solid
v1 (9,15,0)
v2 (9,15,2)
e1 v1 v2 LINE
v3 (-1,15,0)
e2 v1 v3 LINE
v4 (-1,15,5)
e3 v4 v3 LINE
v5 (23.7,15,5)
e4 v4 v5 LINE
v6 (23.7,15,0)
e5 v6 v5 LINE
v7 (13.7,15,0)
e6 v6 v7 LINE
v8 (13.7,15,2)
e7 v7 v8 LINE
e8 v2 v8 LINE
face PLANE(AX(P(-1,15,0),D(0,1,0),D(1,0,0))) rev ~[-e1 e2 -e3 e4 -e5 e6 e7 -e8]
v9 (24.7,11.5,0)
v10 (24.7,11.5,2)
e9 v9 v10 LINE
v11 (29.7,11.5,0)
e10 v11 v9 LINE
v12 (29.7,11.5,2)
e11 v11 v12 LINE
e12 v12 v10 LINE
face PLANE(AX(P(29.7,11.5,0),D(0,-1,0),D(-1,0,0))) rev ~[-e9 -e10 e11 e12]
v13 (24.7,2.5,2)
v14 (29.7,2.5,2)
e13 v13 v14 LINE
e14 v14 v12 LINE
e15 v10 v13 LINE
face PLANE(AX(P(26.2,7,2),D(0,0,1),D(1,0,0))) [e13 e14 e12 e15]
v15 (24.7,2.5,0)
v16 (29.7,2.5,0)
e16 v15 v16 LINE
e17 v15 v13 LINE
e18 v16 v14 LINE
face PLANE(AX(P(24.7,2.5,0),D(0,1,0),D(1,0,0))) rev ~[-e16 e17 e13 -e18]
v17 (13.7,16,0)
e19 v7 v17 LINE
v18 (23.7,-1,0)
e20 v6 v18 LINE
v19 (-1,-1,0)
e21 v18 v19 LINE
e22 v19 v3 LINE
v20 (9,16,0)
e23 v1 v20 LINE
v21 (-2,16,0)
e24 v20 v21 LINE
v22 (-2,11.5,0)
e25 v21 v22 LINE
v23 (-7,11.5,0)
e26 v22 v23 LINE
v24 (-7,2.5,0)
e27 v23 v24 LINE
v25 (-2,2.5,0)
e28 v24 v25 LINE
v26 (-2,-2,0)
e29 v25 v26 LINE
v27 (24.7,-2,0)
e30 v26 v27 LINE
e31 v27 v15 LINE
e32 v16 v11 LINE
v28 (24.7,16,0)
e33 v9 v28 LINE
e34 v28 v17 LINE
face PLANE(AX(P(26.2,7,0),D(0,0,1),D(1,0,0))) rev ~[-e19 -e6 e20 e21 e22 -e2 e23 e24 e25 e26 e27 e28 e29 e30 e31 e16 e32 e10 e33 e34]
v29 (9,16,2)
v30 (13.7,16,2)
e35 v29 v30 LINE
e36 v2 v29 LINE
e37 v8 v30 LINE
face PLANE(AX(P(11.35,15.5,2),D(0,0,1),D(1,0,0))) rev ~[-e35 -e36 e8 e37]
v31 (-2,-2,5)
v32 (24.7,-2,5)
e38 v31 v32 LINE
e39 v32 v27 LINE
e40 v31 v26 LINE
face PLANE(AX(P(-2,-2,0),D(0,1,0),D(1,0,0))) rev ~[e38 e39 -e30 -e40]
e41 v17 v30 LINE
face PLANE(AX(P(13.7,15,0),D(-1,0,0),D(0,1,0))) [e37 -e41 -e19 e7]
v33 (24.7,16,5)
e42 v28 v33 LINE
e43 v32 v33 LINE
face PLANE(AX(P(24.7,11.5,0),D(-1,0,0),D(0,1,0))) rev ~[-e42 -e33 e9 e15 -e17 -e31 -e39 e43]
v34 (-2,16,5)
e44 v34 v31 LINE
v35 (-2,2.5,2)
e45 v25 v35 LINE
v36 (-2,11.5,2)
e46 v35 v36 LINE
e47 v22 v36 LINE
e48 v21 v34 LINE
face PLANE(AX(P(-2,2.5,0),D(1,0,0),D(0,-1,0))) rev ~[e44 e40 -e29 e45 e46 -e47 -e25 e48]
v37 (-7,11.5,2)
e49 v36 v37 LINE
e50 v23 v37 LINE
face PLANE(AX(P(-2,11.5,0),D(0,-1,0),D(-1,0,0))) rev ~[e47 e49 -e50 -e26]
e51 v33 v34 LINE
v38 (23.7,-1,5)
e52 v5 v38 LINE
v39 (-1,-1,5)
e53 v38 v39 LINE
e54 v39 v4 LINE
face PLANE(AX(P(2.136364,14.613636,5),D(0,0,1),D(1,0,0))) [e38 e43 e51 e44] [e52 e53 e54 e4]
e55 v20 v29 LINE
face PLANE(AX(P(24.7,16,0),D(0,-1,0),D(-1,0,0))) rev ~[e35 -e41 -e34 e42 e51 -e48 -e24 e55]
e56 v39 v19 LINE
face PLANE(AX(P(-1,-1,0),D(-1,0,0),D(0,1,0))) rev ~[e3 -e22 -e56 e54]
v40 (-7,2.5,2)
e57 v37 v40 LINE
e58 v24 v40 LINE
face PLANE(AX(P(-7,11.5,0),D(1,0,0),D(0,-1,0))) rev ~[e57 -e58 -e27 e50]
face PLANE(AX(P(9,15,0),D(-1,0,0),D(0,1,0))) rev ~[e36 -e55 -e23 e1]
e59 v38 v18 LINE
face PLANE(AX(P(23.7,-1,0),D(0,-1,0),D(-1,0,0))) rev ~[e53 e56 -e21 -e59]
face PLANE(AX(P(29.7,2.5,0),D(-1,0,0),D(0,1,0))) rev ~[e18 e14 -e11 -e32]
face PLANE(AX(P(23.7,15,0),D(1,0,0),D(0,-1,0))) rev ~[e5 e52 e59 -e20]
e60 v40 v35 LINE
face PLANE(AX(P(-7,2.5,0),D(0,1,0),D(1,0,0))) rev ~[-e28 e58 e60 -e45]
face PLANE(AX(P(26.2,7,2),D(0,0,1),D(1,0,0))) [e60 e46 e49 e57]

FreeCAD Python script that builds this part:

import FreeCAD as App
import Part
import Sketcher
from FreeCAD import Vector
Q = App.Units.Quantity

doc = App.newDocument("Part")
params = doc.addObject("Spreadsheet::Sheet", "Params")
for row, (alias, value) in enumerate([
    ("sketch1_width", "11 mm"),
    ("sketch1_width2", "10 mm"),
    ("sketch1_width3", "5 mm"),
    ("sketch1_height", "1 mm"),
    ("sketch1_height2", "16 mm"),
    ("pad1_length", "2 mm"),
    ("sketch2_height", "18 mm"),
    ("sketch2_height2", "16 mm"),
    ("sketch2_width", "26.7 mm"),
    ("sketch2_width2", "24.7 mm"),
    ("pad2_length", "5 mm"),
    ("sketch3_height", "1 mm"),
    ("sketch3_width", "4.7 mm"),
    ("pocket1_length", "2 mm"),
], start=1):
    params.set(f"A{row}", alias)
    params.set(f"B{row}", "=" + value)
    params.setAlias(f"B{row}", alias)

body = doc.addObject("PartDesign::Body", "Body")

# Sketch on XY plane
sketch1 = doc.addObject("Sketcher::SketchObject", "Sketch")
body.addObject(sketch1)
sketch1.AttachmentSupport = (doc.XY_Plane, [""])
sketch1.MapMode = "FlatFace"
sketch1.addGeometry(Part.LineSegment(Vector(24.7, 11.5, 0), Vector(24.7, 16, 0)), False)
sketch1.addGeometry(Part.LineSegment(Vector(24.7, 16, 0), Vector(13.7, 16, 0)), False)
sketch1.addGeometry(Part.LineSegment(Vector(13.7, 16, 0), Vector(13.7, 15, 0)), False)
sketch1.addGeometry(Part.LineSegment(Vector(13.7, 15, 0), Vector(23.7, 15, 0)), False)
sketch1.addGeometry(Part.LineSegment(Vector(23.7, 15, 0), Vector(23.7, -1, 0)), False)
sketch1.addGeometry(Part.LineSegment(Vector(23.7, -1, 0), Vector(-1, -1, 0)), False)
sketch1.addGeometry(Part.LineSegment(Vector(-1, -1, 0), Vector(-1, 15, 0)), False)
sketch1.addGeometry(Part.LineSegment(Vector(-1, 15, 0), Vector(9, 15, 0)), False)
sketch1.addGeometry(Part.LineSegment(Vector(9, 15, 0), Vector(9, 16, 0)), False)
sketch1.addGeometry(Part.LineSegment(Vector(9, 16, 0), Vector(-2, 16, 0)), False)
sketch1.addGeometry(Part.LineSegment(Vector(-2, 16, 0), Vector(-2, 11.5, 0)), False)
sketch1.addGeometry(Part.LineSegment(Vector(-2, 11.5, 0), Vector(-7, 11.5, 0)), False)
sketch1.addGeometry(Part.LineSegment(Vector(-7, 11.5, 0), Vector(-7, 2.5, 0)), False)
sketch1.addGeometry(Part.LineSegment(Vector(-7, 2.5, 0), Vector(-2, 2.5, 0)), False)
sketch1.addGeometry(Part.LineSegment(Vector(-2, 2.5, 0), Vector(-2, -2, 0)), False)
sketch1.addGeometry(Part.LineSegment(Vector(-2, -2, 0), Vector(24.7, -2, 0)), False)
sketch1.addGeometry(Part.LineSegment(Vector(24.7, -2, 0), Vector(24.7, 2.5, 0)), False)
sketch1.addGeometry(Part.LineSegment(Vector(24.7, 2.5, 0), Vector(29.7, 2.5, 0)), False)
sketch1.addGeometry(Part.LineSegment(Vector(29.7, 2.5, 0), Vector(29.7, 11.5, 0)), False)
sketch1.addGeometry(Part.LineSegment(Vector(29.7, 11.5, 0), Vector(24.7, 11.5, 0)), False)
sketch1.addConstraint(Sketcher.Constraint("Coincident", 0, 2, 1, 1))
sketch1.addConstraint(Sketcher.Constraint("Coincident", 1, 2, 2, 1))
sketch1.addConstraint(Sketcher.Constraint("Coincident", 2, 2, 3, 1))
sketch1.addConstraint(Sketcher.Constraint("Coincident", 3, 2, 4, 1))
sketch1.addConstraint(Sketcher.Constraint("Coincident", 4, 2, 5, 1))
sketch1.addConstraint(Sketcher.Constraint("Coincident", 5, 2, 6, 1))
sketch1.addConstraint(Sketcher.Constraint("Coincident", 6, 2, 7, 1))
sketch1.addConstraint(Sketcher.Constraint("Coincident", 7, 2, 8, 1))
sketch1.addConstraint(Sketcher.Constraint("Coincident", 8, 2, 9, 1))
sketch1.addConstraint(Sketcher.Constraint("Coincident", 9, 2, 10, 1))
sketch1.addConstraint(Sketcher.Constraint("Coincident", 10, 2, 11, 1))
sketch1.addConstraint(Sketcher.Constraint("Coincident", 11, 2, 12, 1))
sketch1.addConstraint(Sketcher.Constraint("Coincident", 12, 2, 13, 1))
sketch1.addConstraint(Sketcher.Constraint("Coincident", 13, 2, 14, 1))
sketch1.addConstraint(Sketcher.Constraint("Coincident", 14, 2, 15, 1))
sketch1.addConstraint(Sketcher.Constraint("Coincident", 15, 2, 16, 1))
sketch1.addConstraint(Sketcher.Constraint("Coincident", 16, 2, 17, 1))
sketch1.addConstraint(Sketcher.Constraint("Coincident", 17, 2, 18, 1))
sketch1.addConstraint(Sketcher.Constraint("Coincident", 18, 2, 19, 1))
sketch1.addConstraint(Sketcher.Constraint("Coincident", 19, 2, 0, 1))
sketch1.addConstraint(Sketcher.Constraint("Vertical", 0))
sketch1.addConstraint(Sketcher.Constraint("Horizontal", 1))
sketch1.addConstraint(Sketcher.Constraint("Vertical", 2))
sketch1.addConstraint(Sketcher.Constraint("Horizontal", 3))
sketch1.addConstraint(Sketcher.Constraint("Vertical", 4))
sketch1.addConstraint(Sketcher.Constraint("Horizontal", 5))
sketch1.addConstraint(Sketcher.Constraint("Vertical", 6))
sketch1.addConstraint(Sketcher.Constraint("Horizontal", 7))
sketch1.addConstraint(Sketcher.Constraint("Vertical", 8))
sketch1.addConstraint(Sketcher.Constraint("Horizontal", 9))
sketch1.addConstraint(Sketcher.Constraint("Vertical", 10))
sketch1.addConstraint(Sketcher.Constraint("Horizontal", 11))
sketch1.addConstraint(Sketcher.Constraint("Vertical", 12))
sketch1.addConstraint(Sketcher.Constraint("Horizontal", 13))
sketch1.addConstraint(Sketcher.Constraint("Vertical", 14))
sketch1.addConstraint(Sketcher.Constraint("Horizontal", 15))
sketch1.addConstraint(Sketcher.Constraint("Vertical", 16))
sketch1.addConstraint(Sketcher.Constraint("Horizontal", 17))
sketch1.addConstraint(Sketcher.Constraint("Vertical", 18))
sketch1.addConstraint(Sketcher.Constraint("Horizontal", 19))
sketch1.addConstraint(Sketcher.Constraint("Horizontal", 3, 2, 6, 2))
sketch1.addConstraint(Sketcher.Constraint("Horizontal", 1, 2, 8, 2))
sketch1.addConstraint(Sketcher.Constraint("Horizontal", 13, 2, 16, 2))
sketch1.addConstraint(Sketcher.Constraint("Horizontal", 11, 2, 18, 2))
sketch1.addConstraint(Sketcher.Constraint("Vertical", 10, 2, 13, 2))
sketch1.addConstraint(Sketcher.Constraint("Vertical", 0, 2, 15, 2))
sketch1.addConstraint(Sketcher.Constraint("Equal", 3, 7))
sketch1.addConstraint(Sketcher.Constraint("Equal", 1, 9))
sketch1.addConstraint(Sketcher.Constraint("Equal", 13, 17))
sketch1.addConstraint(Sketcher.Constraint("Equal", 10, 14))
sketch1.addConstraint(Sketcher.Constraint("DistanceX", 1, 2, 1, 1, Q("11 mm")))
sketch1.addConstraint(Sketcher.Constraint("DistanceX", 3, 1, 3, 2, Q("10 mm")))
sketch1.addConstraint(Sketcher.Constraint("DistanceX", 11, 2, 11, 1, Q("5 mm")))
sketch1.addConstraint(Sketcher.Constraint("DistanceY", 2, 2, 2, 1, Q("1 mm")))
sketch1.addConstraint(Sketcher.Constraint("DistanceY", 4, 2, 4, 1, Q("16 mm")))
sketch1.addConstraint(Sketcher.Constraint("DistanceY", 12, 2, 12, 1, Q("9 mm")))
sketch1.addConstraint(Sketcher.Constraint("DistanceX", 5, 2, 5, 1, Q("24.7 mm")))
sketch1.addConstraint(Sketcher.Constraint("DistanceY", 0, 1, 0, 2, Q("4.5 mm")))
sketch1.addConstraint(Sketcher.Constraint("DistanceY", -1, 1, 0, 2, Q("16 mm")))
sketch1.addConstraint(Sketcher.Constraint("DistanceX", 5, 2, -1, 1, Q("1 mm")))
sketch1.setExpression("Constraints[50]", "Params.sketch1_width")
sketch1.setExpression("Constraints[51]", "Params.sketch1_width2")
sketch1.setExpression("Constraints[52]", "Params.sketch1_width3")
sketch1.setExpression("Constraints[53]", "Params.sketch1_height")
sketch1.setExpression("Constraints[54]", "Params.sketch1_height2")
pad1 = doc.addObject("PartDesign::Pad", "Pad")
body.addObject(pad1)
pad1.Profile = sketch1
pad1.setExpression("Length", "Params.pad1_length")

# Sketch on XY plane
sketch2 = doc.addObject("Sketcher::SketchObject", "Sketch001")
body.addObject(sketch2)
sketch2.AttachmentSupport = (doc.XY_Plane, [""])
sketch2.MapMode = "FlatFace"
sketch2.addGeometry(Part.LineSegment(Vector(-2, -2, 0), Vector(24.7, -2, 0)), False)
sketch2.addGeometry(Part.LineSegment(Vector(24.7, -2, 0), Vector(24.7, 16, 0)), False)
sketch2.addGeometry(Part.LineSegment(Vector(24.7, 16, 0), Vector(-2, 16, 0)), False)
sketch2.addGeometry(Part.LineSegment(Vector(-2, 16, 0), Vector(-2, -2, 0)), False)
sketch2.addGeometry(Part.LineSegment(Vector(-1, 15, 0), Vector(23.7, 15, 0)), False)
sketch2.addGeometry(Part.LineSegment(Vector(23.7, 15, 0), Vector(23.7, -1, 0)), False)
sketch2.addGeometry(Part.LineSegment(Vector(23.7, -1, 0), Vector(-1, -1, 0)), False)
sketch2.addGeometry(Part.LineSegment(Vector(-1, -1, 0), Vector(-1, 15, 0)), False)
sketch2.addConstraint(Sketcher.Constraint("Coincident", 0, 2, 1, 1))
sketch2.addConstraint(Sketcher.Constraint("Coincident", 1, 2, 2, 1))
sketch2.addConstraint(Sketcher.Constraint("Coincident", 2, 2, 3, 1))
sketch2.addConstraint(Sketcher.Constraint("Coincident", 3, 2, 0, 1))
sketch2.addConstraint(Sketcher.Constraint("Coincident", 4, 2, 5, 1))
sketch2.addConstraint(Sketcher.Constraint("Coincident", 5, 2, 6, 1))
sketch2.addConstraint(Sketcher.Constraint("Coincident", 6, 2, 7, 1))
sketch2.addConstraint(Sketcher.Constraint("Coincident", 7, 2, 4, 1))
sketch2.addConstraint(Sketcher.Constraint("Horizontal", 0))
sketch2.addConstraint(Sketcher.Constraint("Vertical", 1))
sketch2.addConstraint(Sketcher.Constraint("Horizontal", 2))
sketch2.addConstraint(Sketcher.Constraint("Vertical", 3))
sketch2.addConstraint(Sketcher.Constraint("Horizontal", 4))
sketch2.addConstraint(Sketcher.Constraint("Vertical", 5))
sketch2.addConstraint(Sketcher.Constraint("Horizontal", 6))
sketch2.addConstraint(Sketcher.Constraint("Vertical", 7))
sketch2.addConstraint(Sketcher.Constraint("DistanceY", 1, 1, 1, 2, Q("18 mm")))
sketch2.addConstraint(Sketcher.Constraint("DistanceY", 5, 2, 5, 1, Q("16 mm")))
sketch2.addConstraint(Sketcher.Constraint("DistanceX", 0, 1, 0, 2, Q("26.7 mm")))
sketch2.addConstraint(Sketcher.Constraint("DistanceX", 4, 1, 4, 2, Q("24.7 mm")))
sketch2.addConstraint(Sketcher.Constraint("DistanceY", 0, 2, -1, 1, Q("2 mm")))
sketch2.addConstraint(Sketcher.Constraint("DistanceX", 2, 2, -1, 1, Q("2 mm")))
sketch2.addConstraint(Sketcher.Constraint("DistanceY", -1, 1, 4, 2, Q("15 mm")))
sketch2.addConstraint(Sketcher.Constraint("DistanceX", 6, 2, -1, 1, Q("1 mm")))
sketch2.setExpression("Constraints[16]", "Params.sketch2_height")
sketch2.setExpression("Constraints[17]", "Params.sketch2_height2")
sketch2.setExpression("Constraints[18]", "Params.sketch2_width")
sketch2.setExpression("Constraints[19]", "Params.sketch2_width2")
pad2 = doc.addObject("PartDesign::Pad", "Pad001")
body.addObject(pad2)
pad2.Profile = sketch2
pad2.setExpression("Length", "Params.pad2_length")

# Sketch on XY plane
sketch3 = doc.addObject("Sketcher::SketchObject", "Sketch002")
body.addObject(sketch3)
sketch3.AttachmentSupport = (doc.XY_Plane, [""])
sketch3.MapMode = "FlatFace"
sketch3.addGeometry(Part.LineSegment(Vector(9, 16, 0), Vector(9, 15, 0)), False)
sketch3.addGeometry(Part.LineSegment(Vector(9, 15, 0), Vector(13.7, 15, 0)), False)
sketch3.addGeometry(Part.LineSegment(Vector(13.7, 15, 0), Vector(13.7, 16, 0)), False)
sketch3.addGeometry(Part.LineSegment(Vector(13.7, 16, 0), Vector(9, 16, 0)), False)
sketch3.addConstraint(Sketcher.Constraint("Coincident", 0, 2, 1, 1))
sketch3.addConstraint(Sketcher.Constraint("Coincident", 1, 2, 2, 1))
sketch3.addConstraint(Sketcher.Constraint("Coincident", 2, 2, 3, 1))
sketch3.addConstraint(Sketcher.Constraint("Coincident", 3, 2, 0, 1))
sketch3.addConstraint(Sketcher.Constraint("Vertical", 0))
sketch3.addConstraint(Sketcher.Constraint("Horizontal", 1))
sketch3.addConstraint(Sketcher.Constraint("Vertical", 2))
sketch3.addConstraint(Sketcher.Constraint("Horizontal", 3))
sketch3.addConstraint(Sketcher.Constraint("DistanceY", 0, 2, 0, 1, Q("1 mm")))
sketch3.addConstraint(Sketcher.Constraint("DistanceX", 1, 1, 1, 2, Q("4.7 mm")))
sketch3.addConstraint(Sketcher.Constraint("DistanceX", -1, 1, 0, 2, Q("9 mm")))
sketch3.addConstraint(Sketcher.Constraint("DistanceY", -1, 1, 0, 2, Q("15 mm")))
sketch3.setExpression("Constraints[8]", "Params.sketch3_height")
sketch3.setExpression("Constraints[9]", "Params.sketch3_width")
pocket1 = doc.addObject("PartDesign::Pocket", "Pocket")
body.addObject(pocket1)
pocket1.Profile = sketch3
pocket1.setExpression("Length", "Params.pocket1_length")
pocket1.Reversed = True

doc.recompute()
